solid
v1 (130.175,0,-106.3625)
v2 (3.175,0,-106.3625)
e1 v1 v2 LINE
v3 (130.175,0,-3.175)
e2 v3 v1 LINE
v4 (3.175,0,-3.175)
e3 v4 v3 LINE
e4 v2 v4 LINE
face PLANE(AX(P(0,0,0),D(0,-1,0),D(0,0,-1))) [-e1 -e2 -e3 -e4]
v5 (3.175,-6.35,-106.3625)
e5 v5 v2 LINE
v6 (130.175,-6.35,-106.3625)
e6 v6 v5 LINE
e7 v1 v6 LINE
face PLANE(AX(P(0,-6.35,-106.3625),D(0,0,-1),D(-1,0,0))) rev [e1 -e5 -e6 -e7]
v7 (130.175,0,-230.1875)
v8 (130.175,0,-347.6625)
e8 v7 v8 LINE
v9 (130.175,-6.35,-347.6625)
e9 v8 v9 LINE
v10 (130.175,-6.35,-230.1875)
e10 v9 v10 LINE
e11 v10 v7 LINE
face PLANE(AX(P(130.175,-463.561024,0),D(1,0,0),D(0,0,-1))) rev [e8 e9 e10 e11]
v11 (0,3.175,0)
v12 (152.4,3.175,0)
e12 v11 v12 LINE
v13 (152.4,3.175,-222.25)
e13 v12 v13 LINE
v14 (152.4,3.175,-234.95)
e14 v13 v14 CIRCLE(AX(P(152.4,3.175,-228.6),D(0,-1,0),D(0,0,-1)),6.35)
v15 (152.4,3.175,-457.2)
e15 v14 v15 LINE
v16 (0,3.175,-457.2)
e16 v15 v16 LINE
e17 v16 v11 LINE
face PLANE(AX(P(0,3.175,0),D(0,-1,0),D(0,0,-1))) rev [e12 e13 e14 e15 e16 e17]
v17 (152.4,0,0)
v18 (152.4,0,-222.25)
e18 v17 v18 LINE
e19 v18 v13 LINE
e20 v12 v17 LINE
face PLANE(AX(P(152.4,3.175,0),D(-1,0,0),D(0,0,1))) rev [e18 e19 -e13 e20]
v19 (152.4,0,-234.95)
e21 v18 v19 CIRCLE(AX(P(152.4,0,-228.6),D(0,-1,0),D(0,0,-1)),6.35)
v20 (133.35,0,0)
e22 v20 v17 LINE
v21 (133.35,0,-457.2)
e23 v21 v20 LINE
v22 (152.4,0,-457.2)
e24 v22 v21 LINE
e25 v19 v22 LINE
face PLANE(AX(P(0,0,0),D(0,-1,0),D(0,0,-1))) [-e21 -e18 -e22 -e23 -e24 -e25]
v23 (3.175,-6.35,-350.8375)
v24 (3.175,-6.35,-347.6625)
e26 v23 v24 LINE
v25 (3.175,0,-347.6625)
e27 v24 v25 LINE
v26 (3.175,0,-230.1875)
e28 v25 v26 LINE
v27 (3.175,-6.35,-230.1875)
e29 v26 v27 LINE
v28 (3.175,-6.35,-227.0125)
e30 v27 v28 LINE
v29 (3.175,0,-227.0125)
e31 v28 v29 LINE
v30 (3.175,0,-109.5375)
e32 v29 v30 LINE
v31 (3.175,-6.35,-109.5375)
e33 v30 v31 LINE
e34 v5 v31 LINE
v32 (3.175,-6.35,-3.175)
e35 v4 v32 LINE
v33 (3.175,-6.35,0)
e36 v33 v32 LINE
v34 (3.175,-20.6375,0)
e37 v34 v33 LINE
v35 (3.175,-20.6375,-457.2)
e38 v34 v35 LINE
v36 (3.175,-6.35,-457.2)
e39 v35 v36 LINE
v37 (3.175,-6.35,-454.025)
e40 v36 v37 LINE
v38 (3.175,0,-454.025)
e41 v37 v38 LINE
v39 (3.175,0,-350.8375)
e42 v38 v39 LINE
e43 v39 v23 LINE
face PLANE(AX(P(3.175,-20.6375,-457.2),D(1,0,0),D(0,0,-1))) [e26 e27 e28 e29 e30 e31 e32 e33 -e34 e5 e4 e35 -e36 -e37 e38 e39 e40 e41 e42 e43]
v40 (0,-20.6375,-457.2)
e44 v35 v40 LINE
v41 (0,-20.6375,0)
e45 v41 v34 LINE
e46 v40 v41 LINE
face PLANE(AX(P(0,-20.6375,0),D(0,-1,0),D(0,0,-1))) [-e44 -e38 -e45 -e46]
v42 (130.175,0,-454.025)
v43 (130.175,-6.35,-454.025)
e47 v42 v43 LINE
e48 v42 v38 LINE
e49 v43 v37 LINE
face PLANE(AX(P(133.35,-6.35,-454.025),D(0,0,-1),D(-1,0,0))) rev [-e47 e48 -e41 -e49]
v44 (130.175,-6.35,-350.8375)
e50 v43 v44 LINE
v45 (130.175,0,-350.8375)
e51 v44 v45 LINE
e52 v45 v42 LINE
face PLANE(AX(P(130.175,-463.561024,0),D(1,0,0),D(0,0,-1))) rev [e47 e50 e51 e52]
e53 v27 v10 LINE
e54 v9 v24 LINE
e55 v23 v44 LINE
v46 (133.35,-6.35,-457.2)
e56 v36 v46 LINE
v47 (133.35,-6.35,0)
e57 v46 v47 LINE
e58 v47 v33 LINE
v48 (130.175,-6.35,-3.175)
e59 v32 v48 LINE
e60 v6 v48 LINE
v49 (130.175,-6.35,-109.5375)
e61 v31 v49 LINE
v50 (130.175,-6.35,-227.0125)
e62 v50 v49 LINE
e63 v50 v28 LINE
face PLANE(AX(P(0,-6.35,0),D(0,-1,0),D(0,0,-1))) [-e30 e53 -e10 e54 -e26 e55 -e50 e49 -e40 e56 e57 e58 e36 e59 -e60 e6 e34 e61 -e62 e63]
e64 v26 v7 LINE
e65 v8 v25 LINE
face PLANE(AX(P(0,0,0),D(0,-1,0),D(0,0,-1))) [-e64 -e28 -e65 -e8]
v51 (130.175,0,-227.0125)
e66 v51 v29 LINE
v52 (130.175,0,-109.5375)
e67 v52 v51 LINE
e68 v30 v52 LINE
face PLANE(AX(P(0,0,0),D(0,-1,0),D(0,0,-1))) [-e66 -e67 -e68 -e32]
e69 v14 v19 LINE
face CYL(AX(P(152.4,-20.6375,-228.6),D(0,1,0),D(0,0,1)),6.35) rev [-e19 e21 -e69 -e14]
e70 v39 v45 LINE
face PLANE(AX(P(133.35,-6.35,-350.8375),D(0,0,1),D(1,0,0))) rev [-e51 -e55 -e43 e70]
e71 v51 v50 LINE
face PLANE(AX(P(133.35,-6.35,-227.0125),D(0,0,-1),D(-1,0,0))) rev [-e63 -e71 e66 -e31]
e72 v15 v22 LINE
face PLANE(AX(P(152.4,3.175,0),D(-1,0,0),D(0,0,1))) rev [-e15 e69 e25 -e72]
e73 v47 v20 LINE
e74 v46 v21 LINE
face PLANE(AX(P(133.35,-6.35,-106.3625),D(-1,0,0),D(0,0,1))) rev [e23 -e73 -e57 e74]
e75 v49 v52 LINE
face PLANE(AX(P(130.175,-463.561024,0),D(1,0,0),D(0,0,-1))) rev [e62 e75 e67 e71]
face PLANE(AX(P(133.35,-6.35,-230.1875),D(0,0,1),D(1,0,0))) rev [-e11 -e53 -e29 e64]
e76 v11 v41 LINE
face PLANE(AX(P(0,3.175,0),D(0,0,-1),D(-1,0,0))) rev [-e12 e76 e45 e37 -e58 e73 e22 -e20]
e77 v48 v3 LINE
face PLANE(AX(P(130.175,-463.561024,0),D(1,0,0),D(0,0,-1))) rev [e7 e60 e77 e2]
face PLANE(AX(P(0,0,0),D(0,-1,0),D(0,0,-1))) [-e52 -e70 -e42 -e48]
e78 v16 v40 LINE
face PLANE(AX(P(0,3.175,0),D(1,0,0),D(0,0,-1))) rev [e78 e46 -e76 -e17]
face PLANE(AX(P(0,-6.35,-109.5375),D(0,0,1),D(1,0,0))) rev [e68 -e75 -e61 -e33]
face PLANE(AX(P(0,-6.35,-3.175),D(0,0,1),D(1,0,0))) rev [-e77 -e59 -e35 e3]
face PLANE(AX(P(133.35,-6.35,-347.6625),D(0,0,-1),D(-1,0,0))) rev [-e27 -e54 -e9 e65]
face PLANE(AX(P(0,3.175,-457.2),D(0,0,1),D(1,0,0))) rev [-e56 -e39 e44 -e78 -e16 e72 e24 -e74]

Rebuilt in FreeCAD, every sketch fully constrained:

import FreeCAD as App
import Part
import Sketcher

V = App.Vector
Q = App.Units.Quantity


def add_polygon(sketch, points):
    """Adds a closed chain of lines whose ends are joined by coincident constraints."""
    first, n = sketch.GeometryCount, len(points)
    for a, b in zip(points, points[1:] + points[:1]):
        sketch.addGeometry(Part.LineSegment(App.Vector(*a, 0), App.Vector(*b, 0)), False)
    for i in range(n):
        sketch.addConstraint(Sketcher.Constraint("Coincident", first + i, 2, first + (i + 1) % n, 1))

doc = App.newDocument("Part")
params = doc.addObject("Spreadsheet::Sheet", "Params")
for row, (alias, value) in enumerate([
    ("sketch1_width", "6 in"),
    ("sketch1_height", "18 in"),
    ("pad1_length", "0.125 in"),
    ("sketch2_height", "18 in"),
    ("sketch2_width", "0.125 in"),
    ("pad2_length", "0.9375 in"),
    ("sketch3_width", "5.25 in"),
    ("sketch3_height", "0.125 in"),
    ("pad3_length", "0.25 in"),
    ("sketch4_height", "18 in"),
    ("sketch4_width", "0.125 in"),
    ("pad4_length", "0.25 in"),
    ("sketch5_diameter", "0.5 in"),
], start=1):
    params.set(f"A{row}", alias)
    params.set(f"B{row}", "=" + value)
    params.setAlias(f"B{row}", alias)

body = doc.addObject("PartDesign::Body", "Body")

# Sketch on XZ plane
sketch1 = body.newObject("Sketcher::SketchObject", "Sketch")
sketch1.AttachmentSupport = (doc.getObject("XZ_Plane"), [""])
sketch1.MapMode = "FlatFace"
add_polygon(sketch1, [(0, -457), (0, 0), (152, 0), (152, -457)])  # lines 0-3
sketch1.addConstraint([
    Sketcher.Constraint("Vertical", 0),
    Sketcher.Constraint("Horizontal", 1),
    Sketcher.Constraint("Vertical", 2),
    Sketcher.Constraint("Horizontal", 3),
    Sketcher.Constraint("Coincident", 0, 2, -1, 1),
    Sketcher.Constraint("DistanceX", 1, 1, 1, 2, Q("6 in")),
    Sketcher.Constraint("DistanceY", 0, 1, 0, 2, Q("18 in")),
])
sketch1.setExpression("Constraints[9]", "Params.sketch1_width")
sketch1.setExpression("Constraints[10]", "Params.sketch1_height")
pad1 = body.newObject("PartDesign::Pad", "Pad")
pad1.Profile = sketch1
pad1.setExpression("Length", "Params.pad1_length")
pad1.Reversed = True

# Sketch on XZ plane
sketch2 = body.newObject("Sketcher::SketchObject", "Sketch001")
sketch2.AttachmentSupport = (doc.getObject("XZ_Plane"), [""])
sketch2.MapMode = "FlatFace"
sketch2.AttachmentOffset = App.Placement(V(0, 0, -0.125 * 25.4), App.Rotation())
add_polygon(sketch2, [(0, -457.2), (0, 0), (3.2, 0), (3.2, -457.2)])  # lines 0-3
sketch2.addConstraint([
    Sketcher.Constraint("Vertical", 0),
    Sketcher.Constraint("Horizontal", 1),
    Sketcher.Constraint("Vertical", 2),
    Sketcher.Constraint("Horizontal", 3),
    Sketcher.Constraint("Coincident", 0, 2, -1, 1),
    Sketcher.Constraint("DistanceY", 0, 1, 0, 2, Q("18 in")),
    Sketcher.Constraint("DistanceX", 1, 1, 1, 2, Q("0.125 in")),
])
sketch2.setExpression("Constraints[9]", "Params.sketch2_height")
sketch2.setExpression("Constraints[10]", "Params.sketch2_width")
pad2 = body.newObject("PartDesign::Pad", "Pad001")
pad2.Profile = sketch2
pad2.setExpression("Length", "Params.pad2_length")

# Sketch on XZ plane
sketch3 = body.newObject("Sketcher::SketchObject", "Sketch002")
sketch3.AttachmentSupport = (doc.getObject("XZ_Plane"), [""])
sketch3.MapMode = "FlatFace"
add_polygon(sketch3, [(0, -106.4), (0, -109.5), (133.3, -109.5), (133.3, -106.4)])  # lines 0-3
add_polygon(sketch3, [(0, -227), (0, -230.2), (133.3, -230.2), (133.3, -227)])  # lines 4-7
add_polygon(sketch3, [(0, -347.7), (0, -350.8), (133.3, -350.8), (133.3, -347.7)])  # lines 8-11
add_polygon(sketch3, [(0, 0), (0, -3.2), (133.3, -3.2), (133.3, 0)])  # lines 12-15
add_polygon(sketch3, [(0, -454), (0, -457.2), (133.3, -457.2), (133.3, -454)])  # lines 16-19
sketch3.addConstraint([
    Sketcher.Constraint("Vertical", 0),
    Sketcher.Constraint("Horizontal", 1),
    Sketcher.Constraint("Vertical", 2),
    Sketcher.Constraint("Horizontal", 3),
    Sketcher.Constraint("Vertical", 4),
    Sketcher.Constraint("Horizontal", 5),
    Sketcher.Constraint("Vertical", 6),
    Sketcher.Constraint("Horizontal", 7),
    Sketcher.Constraint("Vertical", 8),
    Sketcher.Constraint("Horizontal", 9),
    Sketcher.Constraint("Vertical", 10),
    Sketcher.Constraint("Horizontal", 11),
    Sketcher.Constraint("Vertical", 12),
    Sketcher.Constraint("Horizontal", 13),
    Sketcher.Constraint("Vertical", 14),
    Sketcher.Constraint("Horizontal", 15),
    Sketcher.Constraint("Vertical", 16),
    Sketcher.Constraint("Horizontal", 17),
    Sketcher.Constraint("Vertical", 18),
    Sketcher.Constraint("Horizontal", 19),
    Sketcher.Constraint("Coincident", 15, 2, -1, 1),
    Sketcher.Constraint("PointOnObject", 0, 2, -2),
    Sketcher.Constraint("PointOnObject", 4, 2, -2),
    Sketcher.Constraint("PointOnObject", 8, 2, -2),
    Sketcher.Constraint("PointOnObject", 16, 2, -2),
    Sketcher.Constraint("Vertical", 2, 2, 5, 2),
    Sketcher.Constraint("Vertical", 6, 2, 9, 2),
    Sketcher.Constraint("Vertical", 10, 2, 13, 2),
    Sketcher.Constraint("Vertical", 14, 2, 17, 2),
    Sketcher.Constraint("Equal", 2, 4),
    Sketcher.Constraint("Equal", 6, 8),
    Sketcher.Constraint("Equal", 10, 12),
    Sketcher.Constraint("Equal", 14, 16),
    Sketcher.Constraint("DistanceY", 16, 2, -1, 1, Q("18 in")),
    Sketcher.Constraint("DistanceX", 1, 1, 1, 2, Q("5.25 in")),
    Sketcher.Constraint("DistanceY", 8, 2, 0, 2, Q("9.5 in")),
    Sketcher.Constraint("DistanceY", 0, 2, 0, 1, Q("0.125 in")),
    Sketcher.Constraint("DistanceY", 4, 2, 0, 2, Q("4.75 in")),
    Sketcher.Constraint("DistanceY", 0, 2, -1, 1, Q("4.3125 in")),
])
sketch3.setExpression("Constraints[54]", "Params.sketch3_width")
sketch3.setExpression("Constraints[56]", "Params.sketch3_height")
pad3 = body.newObject("PartDesign::Pad", "Pad002")
pad3.Profile = sketch3
pad3.setExpression("Length", "Params.pad3_length")

# Sketch on XZ plane
sketch4 = body.newObject("Sketcher::SketchObject", "Sketch003")
sketch4.AttachmentSupport = (doc.getObject("XZ_Plane"), [""])
sketch4.MapMode = "FlatFace"
add_polygon(sketch4, [(130.2, 0), (130.2, -457.2), (133.3, -457.2), (133.3, 0)])  # lines 0-3
sketch4.addConstraint([
    Sketcher.Constraint("Vertical", 0),
    Sketcher.Constraint("Horizontal", 1),
    Sketcher.Constraint("Vertical", 2),
    Sketcher.Constraint("Horizontal", 3),
    Sketcher.Constraint("PointOnObject", 2, 2, -1),
    Sketcher.Constraint("DistanceY", 0, 2, 0, 1, Q("18 in")),
    Sketcher.Constraint("DistanceX", 1, 1, 1, 2, Q("0.125 in")),
    Sketcher.Constraint("DistanceX", -1, 1, 1, 2, Q("5.25 in")),
])
sketch4.setExpression("Constraints[9]", "Params.sketch4_height")
sketch4.setExpression("Constraints[10]", "Params.sketch4_width")
pad4 = body.newObject("PartDesign::Pad", "Pad003")
pad4.Profile = sketch4
pad4.setExpression("Length", "Params.pad4_length")

# Sketch on XZ plane
sketch5 = body.newObject("Sketcher::SketchObject", "Sketch004")
sketch5.AttachmentSupport = (doc.getObject("XZ_Plane"), [""])
sketch5.MapMode = "FlatFace"
sketch5.AttachmentOffset = App.Placement(V(0, 0, -0.125 * 25.4), App.Rotation())
sketch5.addGeometry(Part.Circle(V(152, -229, 0), V(0, 0, 1), 6), False)
sketch5.addConstraint([
    Sketcher.Constraint("Diameter", 0, Q("0.5 in")),
    Sketcher.Constraint("DistanceX", -1, 1, 0, 3, Q("6 in")),
    Sketcher.Constraint("DistanceY", 0, 3, -1, 1, Q("9 in")),
])
sketch5.setExpression("Constraints[0]", "Params.sketch5_diameter")
pocket1 = body.newObject("PartDesign::Pocket", "Pocket")
pocket1.Profile = sketch5
pocket1.Type = "ThroughAll"
pocket1.Reversed = True

doc.recompute()
